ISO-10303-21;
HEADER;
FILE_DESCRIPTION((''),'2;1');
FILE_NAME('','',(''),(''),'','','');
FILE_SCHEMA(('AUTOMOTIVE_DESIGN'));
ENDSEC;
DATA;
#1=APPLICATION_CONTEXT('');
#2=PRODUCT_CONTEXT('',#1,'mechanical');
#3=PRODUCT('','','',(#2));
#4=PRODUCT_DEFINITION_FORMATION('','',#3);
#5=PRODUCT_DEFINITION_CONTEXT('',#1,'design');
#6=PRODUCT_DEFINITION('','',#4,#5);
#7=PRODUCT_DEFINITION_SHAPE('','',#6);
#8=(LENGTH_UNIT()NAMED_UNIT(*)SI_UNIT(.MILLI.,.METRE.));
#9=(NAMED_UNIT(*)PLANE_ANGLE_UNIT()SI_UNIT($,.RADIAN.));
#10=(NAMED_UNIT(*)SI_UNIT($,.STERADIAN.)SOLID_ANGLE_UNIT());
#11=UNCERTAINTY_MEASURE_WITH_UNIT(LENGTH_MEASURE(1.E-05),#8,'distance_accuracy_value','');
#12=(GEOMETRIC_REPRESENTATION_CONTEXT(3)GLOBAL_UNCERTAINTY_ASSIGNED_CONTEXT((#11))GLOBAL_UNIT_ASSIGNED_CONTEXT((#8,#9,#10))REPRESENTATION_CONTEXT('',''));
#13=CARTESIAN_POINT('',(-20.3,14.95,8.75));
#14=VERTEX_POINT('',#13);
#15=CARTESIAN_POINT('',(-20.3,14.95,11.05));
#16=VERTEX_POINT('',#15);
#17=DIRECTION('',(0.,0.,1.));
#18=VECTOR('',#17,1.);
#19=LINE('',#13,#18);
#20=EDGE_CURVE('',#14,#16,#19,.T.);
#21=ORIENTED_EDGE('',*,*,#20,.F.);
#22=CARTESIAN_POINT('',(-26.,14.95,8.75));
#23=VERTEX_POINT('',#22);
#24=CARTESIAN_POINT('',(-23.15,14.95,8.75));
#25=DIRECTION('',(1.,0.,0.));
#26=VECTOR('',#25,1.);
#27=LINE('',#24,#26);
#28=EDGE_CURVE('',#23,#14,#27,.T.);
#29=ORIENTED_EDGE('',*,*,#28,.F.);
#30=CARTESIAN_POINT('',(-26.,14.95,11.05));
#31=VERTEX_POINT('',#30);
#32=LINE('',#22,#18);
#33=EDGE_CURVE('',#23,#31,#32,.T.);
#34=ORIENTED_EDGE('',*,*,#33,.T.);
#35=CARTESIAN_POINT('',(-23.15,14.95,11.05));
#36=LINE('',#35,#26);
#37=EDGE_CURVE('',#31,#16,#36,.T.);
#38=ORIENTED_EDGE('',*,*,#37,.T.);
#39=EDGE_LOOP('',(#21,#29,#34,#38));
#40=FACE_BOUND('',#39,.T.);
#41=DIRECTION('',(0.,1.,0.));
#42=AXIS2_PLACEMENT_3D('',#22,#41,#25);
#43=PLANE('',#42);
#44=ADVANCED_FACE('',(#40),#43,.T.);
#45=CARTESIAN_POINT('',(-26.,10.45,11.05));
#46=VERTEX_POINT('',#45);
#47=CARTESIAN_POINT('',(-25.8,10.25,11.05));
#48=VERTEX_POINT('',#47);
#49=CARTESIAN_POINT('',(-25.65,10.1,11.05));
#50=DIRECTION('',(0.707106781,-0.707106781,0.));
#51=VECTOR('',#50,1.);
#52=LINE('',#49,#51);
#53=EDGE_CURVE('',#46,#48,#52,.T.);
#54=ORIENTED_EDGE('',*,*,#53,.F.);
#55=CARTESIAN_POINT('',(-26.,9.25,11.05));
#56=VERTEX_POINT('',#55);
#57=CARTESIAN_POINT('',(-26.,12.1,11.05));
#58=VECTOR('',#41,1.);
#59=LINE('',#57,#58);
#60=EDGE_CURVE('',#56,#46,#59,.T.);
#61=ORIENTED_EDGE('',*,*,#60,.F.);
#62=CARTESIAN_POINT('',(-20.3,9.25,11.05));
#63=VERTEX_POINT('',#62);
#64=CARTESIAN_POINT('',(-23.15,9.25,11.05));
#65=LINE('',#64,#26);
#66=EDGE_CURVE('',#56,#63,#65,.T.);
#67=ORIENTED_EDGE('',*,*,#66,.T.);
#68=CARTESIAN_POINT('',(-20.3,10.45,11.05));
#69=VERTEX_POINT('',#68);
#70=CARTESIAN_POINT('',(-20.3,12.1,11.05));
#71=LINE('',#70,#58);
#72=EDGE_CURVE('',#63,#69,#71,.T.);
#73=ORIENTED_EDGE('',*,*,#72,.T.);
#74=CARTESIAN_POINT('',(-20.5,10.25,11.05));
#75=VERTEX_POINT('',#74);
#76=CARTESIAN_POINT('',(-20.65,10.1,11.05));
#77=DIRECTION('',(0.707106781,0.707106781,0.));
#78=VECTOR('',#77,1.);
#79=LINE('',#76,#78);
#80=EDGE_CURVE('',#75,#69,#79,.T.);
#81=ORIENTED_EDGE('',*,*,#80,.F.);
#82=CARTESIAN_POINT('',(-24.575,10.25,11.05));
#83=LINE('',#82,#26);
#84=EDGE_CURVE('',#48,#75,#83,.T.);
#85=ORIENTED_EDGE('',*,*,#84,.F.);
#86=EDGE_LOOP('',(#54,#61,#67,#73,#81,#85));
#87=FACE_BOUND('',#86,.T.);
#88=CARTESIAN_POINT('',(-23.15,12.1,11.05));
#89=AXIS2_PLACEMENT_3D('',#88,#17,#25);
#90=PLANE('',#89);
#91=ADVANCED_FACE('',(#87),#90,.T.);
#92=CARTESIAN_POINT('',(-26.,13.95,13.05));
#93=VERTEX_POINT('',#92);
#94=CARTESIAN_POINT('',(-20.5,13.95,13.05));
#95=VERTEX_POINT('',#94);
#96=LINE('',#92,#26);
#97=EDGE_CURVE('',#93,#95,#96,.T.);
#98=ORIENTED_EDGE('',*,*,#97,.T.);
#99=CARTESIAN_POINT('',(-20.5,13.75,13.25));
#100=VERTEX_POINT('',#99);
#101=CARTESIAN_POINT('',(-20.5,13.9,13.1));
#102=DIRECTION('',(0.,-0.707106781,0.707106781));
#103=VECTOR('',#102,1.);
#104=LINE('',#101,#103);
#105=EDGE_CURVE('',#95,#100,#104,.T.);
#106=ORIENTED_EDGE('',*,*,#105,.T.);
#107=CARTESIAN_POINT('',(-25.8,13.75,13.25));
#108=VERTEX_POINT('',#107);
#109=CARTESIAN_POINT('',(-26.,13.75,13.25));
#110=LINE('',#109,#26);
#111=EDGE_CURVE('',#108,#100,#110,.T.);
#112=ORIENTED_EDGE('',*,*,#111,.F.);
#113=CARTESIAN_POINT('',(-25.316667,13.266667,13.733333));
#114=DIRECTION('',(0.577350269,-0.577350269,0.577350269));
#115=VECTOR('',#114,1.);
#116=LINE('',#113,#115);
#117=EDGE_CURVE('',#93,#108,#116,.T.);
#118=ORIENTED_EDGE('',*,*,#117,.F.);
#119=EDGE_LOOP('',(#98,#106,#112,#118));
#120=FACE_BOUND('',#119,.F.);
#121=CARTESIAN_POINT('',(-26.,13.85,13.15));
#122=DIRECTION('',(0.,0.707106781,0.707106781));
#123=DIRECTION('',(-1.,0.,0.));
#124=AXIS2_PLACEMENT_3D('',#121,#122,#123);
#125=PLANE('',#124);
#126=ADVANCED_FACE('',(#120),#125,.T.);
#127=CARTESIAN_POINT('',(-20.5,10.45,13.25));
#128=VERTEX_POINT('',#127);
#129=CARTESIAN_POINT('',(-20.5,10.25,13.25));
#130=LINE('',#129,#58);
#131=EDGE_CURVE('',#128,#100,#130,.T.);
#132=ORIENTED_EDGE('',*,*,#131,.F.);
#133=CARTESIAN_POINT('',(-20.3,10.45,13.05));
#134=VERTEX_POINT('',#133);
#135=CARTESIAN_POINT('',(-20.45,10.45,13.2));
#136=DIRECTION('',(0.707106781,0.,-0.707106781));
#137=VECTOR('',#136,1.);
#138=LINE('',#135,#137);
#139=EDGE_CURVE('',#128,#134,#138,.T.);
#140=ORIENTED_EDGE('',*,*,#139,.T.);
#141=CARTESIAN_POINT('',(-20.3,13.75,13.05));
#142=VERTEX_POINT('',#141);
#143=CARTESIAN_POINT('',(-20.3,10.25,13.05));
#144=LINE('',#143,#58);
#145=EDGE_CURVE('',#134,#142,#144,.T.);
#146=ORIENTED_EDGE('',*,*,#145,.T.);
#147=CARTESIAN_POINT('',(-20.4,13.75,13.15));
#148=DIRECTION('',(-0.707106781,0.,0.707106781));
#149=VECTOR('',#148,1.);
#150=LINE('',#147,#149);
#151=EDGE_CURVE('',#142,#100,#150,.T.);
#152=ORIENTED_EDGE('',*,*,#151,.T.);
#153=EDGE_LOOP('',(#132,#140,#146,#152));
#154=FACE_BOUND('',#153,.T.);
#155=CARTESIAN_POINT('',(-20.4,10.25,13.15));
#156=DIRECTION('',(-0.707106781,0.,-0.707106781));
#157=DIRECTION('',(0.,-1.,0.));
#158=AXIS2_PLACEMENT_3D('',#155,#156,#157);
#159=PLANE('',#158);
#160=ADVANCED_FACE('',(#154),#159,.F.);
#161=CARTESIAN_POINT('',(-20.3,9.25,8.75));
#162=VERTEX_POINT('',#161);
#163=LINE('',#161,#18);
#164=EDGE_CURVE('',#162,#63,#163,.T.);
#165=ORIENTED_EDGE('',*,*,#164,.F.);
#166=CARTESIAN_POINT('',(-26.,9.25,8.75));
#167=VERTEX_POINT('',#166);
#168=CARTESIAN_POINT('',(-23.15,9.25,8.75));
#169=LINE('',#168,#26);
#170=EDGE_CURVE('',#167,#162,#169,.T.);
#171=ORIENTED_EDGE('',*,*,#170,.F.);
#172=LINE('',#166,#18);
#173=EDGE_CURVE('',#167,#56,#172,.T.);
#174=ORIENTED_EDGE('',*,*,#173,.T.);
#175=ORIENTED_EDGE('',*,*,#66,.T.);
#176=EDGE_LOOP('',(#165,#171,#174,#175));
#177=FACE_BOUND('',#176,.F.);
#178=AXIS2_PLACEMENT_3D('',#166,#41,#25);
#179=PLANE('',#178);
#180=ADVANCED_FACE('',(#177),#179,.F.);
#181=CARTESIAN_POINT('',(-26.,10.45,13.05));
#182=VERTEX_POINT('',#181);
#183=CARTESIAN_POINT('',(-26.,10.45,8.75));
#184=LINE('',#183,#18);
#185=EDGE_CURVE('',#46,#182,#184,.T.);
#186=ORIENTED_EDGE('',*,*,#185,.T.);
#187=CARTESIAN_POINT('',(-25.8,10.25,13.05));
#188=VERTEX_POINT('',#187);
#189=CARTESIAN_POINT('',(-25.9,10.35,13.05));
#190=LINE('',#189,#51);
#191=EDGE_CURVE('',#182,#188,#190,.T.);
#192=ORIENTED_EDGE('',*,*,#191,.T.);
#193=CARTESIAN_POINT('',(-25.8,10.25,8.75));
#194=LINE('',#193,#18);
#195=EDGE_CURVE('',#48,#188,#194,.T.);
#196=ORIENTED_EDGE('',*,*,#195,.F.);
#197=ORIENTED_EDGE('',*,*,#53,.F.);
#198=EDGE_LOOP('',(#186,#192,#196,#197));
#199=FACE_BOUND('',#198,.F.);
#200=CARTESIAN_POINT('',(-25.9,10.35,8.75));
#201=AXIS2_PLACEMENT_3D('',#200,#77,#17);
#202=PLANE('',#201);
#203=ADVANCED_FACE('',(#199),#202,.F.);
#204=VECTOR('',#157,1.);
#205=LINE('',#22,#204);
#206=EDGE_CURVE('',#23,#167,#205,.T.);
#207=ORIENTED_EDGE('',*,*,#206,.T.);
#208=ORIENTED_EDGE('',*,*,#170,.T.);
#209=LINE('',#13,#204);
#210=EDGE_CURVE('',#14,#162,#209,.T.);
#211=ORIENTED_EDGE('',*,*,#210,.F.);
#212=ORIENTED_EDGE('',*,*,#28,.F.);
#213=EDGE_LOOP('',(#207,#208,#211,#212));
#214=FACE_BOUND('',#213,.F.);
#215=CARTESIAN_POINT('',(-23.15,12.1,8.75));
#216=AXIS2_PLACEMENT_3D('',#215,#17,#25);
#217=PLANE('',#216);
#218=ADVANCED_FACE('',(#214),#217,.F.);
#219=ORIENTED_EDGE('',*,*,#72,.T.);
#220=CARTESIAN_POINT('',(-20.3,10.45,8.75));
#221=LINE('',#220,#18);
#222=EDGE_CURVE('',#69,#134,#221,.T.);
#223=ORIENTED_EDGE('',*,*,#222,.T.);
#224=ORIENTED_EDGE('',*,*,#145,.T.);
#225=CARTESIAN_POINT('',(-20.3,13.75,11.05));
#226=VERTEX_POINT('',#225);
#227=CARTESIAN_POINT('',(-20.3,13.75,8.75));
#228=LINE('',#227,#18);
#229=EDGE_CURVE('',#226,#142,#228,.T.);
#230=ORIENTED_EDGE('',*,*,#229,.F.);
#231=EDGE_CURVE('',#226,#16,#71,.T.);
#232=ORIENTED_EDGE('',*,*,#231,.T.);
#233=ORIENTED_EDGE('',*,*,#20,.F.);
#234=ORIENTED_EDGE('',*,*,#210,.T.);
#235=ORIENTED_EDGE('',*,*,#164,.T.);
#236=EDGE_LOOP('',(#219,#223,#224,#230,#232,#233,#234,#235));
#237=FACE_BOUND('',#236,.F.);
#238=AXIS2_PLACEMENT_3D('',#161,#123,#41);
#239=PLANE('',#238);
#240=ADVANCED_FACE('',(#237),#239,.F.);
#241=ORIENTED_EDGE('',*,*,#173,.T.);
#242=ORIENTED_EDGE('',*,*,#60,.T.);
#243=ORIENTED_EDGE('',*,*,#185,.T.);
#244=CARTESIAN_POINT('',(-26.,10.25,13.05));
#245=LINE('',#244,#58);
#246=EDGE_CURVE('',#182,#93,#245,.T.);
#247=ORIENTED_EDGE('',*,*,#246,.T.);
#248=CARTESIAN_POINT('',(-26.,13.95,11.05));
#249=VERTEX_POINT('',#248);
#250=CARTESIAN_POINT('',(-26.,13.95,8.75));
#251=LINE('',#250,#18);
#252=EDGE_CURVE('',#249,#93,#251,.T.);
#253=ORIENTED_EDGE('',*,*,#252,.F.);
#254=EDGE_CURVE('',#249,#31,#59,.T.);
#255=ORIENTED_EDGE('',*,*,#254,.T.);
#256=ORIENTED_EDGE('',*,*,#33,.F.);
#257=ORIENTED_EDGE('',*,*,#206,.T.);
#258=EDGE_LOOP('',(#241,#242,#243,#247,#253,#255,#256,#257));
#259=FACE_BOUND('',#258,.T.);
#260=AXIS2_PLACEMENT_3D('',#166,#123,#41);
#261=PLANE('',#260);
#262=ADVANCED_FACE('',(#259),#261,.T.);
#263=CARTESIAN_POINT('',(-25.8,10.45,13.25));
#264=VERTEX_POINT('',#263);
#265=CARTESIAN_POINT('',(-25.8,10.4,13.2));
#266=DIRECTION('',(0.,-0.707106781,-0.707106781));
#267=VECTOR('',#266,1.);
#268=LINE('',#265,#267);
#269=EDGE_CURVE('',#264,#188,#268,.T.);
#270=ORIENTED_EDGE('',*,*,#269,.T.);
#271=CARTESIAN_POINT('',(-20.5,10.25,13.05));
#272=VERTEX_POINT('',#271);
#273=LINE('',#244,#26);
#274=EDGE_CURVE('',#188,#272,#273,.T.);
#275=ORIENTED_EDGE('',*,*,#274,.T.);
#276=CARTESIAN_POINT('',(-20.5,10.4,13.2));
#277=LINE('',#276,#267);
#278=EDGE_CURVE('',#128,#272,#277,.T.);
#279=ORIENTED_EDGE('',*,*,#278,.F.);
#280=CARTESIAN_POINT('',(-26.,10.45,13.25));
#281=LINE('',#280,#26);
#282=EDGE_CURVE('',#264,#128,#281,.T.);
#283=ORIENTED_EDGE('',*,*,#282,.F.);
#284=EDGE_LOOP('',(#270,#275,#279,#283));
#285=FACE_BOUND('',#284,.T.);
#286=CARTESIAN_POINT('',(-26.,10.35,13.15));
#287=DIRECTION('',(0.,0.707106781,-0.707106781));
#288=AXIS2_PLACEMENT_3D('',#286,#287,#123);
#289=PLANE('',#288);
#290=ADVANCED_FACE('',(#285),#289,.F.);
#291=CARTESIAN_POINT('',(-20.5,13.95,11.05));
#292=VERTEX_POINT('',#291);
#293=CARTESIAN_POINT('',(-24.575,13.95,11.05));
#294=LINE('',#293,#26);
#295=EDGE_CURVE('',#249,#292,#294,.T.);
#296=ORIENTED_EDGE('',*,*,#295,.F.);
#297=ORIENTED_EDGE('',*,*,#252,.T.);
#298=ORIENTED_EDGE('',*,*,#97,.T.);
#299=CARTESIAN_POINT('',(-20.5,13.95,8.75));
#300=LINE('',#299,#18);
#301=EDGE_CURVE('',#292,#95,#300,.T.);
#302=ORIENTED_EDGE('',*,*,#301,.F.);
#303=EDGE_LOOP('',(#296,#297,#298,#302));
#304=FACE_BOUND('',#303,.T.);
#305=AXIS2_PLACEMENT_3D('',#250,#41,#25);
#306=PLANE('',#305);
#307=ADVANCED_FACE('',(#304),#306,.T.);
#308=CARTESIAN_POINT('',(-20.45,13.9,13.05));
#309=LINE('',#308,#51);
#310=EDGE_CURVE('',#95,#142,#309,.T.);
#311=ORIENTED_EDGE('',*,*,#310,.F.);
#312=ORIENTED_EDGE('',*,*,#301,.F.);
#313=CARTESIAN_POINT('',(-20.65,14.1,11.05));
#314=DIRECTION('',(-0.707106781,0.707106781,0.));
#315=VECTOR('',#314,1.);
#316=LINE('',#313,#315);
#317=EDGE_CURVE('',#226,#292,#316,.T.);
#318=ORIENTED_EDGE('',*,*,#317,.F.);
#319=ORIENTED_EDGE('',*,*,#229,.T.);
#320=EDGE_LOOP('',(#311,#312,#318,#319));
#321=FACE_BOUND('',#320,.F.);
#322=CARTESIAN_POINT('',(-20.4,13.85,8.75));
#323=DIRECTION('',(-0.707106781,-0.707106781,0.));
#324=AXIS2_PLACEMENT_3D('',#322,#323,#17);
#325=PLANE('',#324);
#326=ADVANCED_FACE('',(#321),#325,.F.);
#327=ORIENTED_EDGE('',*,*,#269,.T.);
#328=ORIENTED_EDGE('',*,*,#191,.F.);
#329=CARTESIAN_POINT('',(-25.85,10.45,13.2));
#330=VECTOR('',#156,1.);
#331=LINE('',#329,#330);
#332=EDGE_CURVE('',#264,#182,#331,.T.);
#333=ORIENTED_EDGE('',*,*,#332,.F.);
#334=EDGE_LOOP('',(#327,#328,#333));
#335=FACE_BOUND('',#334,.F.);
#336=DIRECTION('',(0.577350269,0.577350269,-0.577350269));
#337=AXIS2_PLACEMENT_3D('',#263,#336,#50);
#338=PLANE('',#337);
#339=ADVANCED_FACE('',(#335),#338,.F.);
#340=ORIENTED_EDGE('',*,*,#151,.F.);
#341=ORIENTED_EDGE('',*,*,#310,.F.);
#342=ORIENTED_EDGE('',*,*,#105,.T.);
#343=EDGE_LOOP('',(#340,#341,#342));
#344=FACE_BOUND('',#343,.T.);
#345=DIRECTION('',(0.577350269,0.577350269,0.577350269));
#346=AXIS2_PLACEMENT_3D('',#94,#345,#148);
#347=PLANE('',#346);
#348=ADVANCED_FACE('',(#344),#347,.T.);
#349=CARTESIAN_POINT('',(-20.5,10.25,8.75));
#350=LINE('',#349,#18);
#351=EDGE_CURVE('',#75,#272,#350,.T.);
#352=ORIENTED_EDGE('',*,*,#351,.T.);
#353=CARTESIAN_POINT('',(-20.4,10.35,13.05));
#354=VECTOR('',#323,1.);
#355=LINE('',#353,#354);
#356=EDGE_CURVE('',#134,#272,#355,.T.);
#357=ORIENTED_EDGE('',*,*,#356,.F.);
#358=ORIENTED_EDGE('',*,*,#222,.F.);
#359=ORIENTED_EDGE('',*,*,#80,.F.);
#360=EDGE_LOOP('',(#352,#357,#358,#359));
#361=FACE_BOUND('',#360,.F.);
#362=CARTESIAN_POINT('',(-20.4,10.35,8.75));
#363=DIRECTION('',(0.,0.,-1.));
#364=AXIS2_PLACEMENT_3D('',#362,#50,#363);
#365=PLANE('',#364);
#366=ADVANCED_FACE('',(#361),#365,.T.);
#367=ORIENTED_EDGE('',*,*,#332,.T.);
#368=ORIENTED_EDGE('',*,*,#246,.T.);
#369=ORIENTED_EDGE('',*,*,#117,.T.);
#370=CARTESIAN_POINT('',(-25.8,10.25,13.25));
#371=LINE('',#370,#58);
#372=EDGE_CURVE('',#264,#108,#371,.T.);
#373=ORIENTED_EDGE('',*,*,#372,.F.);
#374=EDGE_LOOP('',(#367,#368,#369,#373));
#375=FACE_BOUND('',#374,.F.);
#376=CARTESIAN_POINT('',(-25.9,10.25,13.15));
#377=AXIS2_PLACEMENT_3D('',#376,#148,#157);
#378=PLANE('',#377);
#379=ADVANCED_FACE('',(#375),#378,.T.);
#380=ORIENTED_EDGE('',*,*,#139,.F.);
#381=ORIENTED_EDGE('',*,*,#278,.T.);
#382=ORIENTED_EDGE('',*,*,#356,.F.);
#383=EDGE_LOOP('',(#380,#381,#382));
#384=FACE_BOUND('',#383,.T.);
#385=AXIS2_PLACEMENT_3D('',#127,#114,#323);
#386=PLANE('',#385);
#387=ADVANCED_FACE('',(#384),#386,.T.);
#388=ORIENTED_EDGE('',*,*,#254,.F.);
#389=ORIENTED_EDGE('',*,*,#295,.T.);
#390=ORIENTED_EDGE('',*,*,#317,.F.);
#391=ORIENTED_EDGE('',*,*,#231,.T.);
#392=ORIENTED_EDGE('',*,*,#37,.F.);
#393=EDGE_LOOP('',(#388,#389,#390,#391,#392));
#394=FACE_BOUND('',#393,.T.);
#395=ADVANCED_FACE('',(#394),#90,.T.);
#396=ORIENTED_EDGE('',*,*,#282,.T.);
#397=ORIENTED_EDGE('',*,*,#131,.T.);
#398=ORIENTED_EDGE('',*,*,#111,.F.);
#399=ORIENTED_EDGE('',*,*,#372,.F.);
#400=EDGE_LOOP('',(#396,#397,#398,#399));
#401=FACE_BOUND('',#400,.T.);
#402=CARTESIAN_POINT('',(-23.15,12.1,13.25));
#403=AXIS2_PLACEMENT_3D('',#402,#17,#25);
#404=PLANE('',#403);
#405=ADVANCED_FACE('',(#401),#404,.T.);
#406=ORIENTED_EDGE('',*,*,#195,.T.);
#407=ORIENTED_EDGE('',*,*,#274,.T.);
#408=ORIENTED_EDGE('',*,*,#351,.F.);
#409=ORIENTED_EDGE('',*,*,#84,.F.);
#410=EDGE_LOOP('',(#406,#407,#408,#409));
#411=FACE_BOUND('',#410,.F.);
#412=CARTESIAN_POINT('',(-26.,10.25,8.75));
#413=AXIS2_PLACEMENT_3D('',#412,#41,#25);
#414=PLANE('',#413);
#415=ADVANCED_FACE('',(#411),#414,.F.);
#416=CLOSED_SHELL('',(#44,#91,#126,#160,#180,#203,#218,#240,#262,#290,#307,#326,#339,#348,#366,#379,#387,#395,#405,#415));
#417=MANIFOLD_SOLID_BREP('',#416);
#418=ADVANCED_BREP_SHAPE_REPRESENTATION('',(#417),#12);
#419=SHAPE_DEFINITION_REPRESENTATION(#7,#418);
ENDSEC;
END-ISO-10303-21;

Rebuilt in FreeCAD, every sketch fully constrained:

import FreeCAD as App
import Part
import Sketcher
from FreeCAD import Vector


def edges_at(feature, points):
    """Names of the edges that pass closest to the given points."""
    edges = feature.Shape.Edges
    near = lambda p: min(range(len(edges)), key=lambda i: edges[i].distToShape(Part.Vertex(*p))[0])
    return sorted({f"Edge{near(p) + 1}" for p in points})

doc = App.newDocument("Part")
body = doc.addObject("PartDesign::Body", "Body")

sketch1 = doc.addObject("Sketcher::SketchObject", "Sketch")
body.addObject(sketch1)
sketch1.AttachmentSupport = (doc.XY_Plane, [""])
sketch1.MapMode = "FlatFace"
sketch1.addGeometry([
    Part.LineSegment(Vector(0, 5, 0), Vector(0, -1, 0)),
    Part.LineSegment(Vector(0, -1, 0), Vector(6, -1, 0)),
    Part.LineSegment(Vector(6, -1, 0), Vector(6, 5, 0)),
    Part.LineSegment(Vector(6, 5, 0), Vector(0, 5, 0)),
], False)
sketch1.addConstraint([
    Sketcher.Constraint("Coincident", 0, 2, 1, 1),
    Sketcher.Constraint("Coincident", 1, 2, 2, 1),
    Sketcher.Constraint("Coincident", 2, 2, 3, 1),
    Sketcher.Constraint("Coincident", 3, 2, 0, 1),
    Sketcher.Constraint("Vertical", 0),
    Sketcher.Constraint("Horizontal", 1),
    Sketcher.Constraint("Vertical", 2),
    Sketcher.Constraint("Horizontal", 3),
    Sketcher.Constraint("PointOnObject", 0, 2, -2),
    Sketcher.Constraint("Equal", 3, 0),
    Sketcher.Constraint("DistanceX", 1, 1, 1, 2, 5.7),
    Sketcher.Constraint("DistanceY", 0, 2, -1, 1, 1.0),
])
pad1 = doc.addObject("PartDesign::Pad", "Pad")
body.addObject(pad1)
pad1.Profile = sketch1
pad1.Length = 2.3
body2 = doc.addObject("PartDesign::Body", "Body001")

sketch2 = doc.addObject("Sketcher::SketchObject", "Sketch001")
body2.addObject(sketch2)
sketch2.AttachmentSupport = (doc.getObject("XY_Plane001"), [""])
sketch2.MapMode = "FlatFace"
sketch2.addGeometry([
    Part.LineSegment(Vector(0, 3.7, 0), Vector(0, 0, 0)),
    Part.LineSegment(Vector(0, 0, 0), Vector(5.7, 0, 0)),
    Part.LineSegment(Vector(5.7, 0, 0), Vector(5.7, 3.7, 0)),
    Part.LineSegment(Vector(5.7, 3.7, 0), Vector(0, 3.7, 0)),
], False)
sketch2.addConstraint([
    Sketcher.Constraint("Coincident", 0, 2, 1, 1),
    Sketcher.Constraint("Coincident", 1, 2, 2, 1),
    Sketcher.Constraint("Coincident", 2, 2, 3, 1),
    Sketcher.Constraint("Coincident", 3, 2, 0, 1),
    Sketcher.Constraint("Vertical", 0),
    Sketcher.Constraint("Horizontal", 1),
    Sketcher.Constraint("Vertical", 2),
    Sketcher.Constraint("Horizontal", 3),
    Sketcher.Constraint("Coincident", 0, 2, -1, 1),
    Sketcher.Constraint("DistanceX", 1, 1, 1, 2, 5.7),
    Sketcher.Constraint("DistanceY", 0, 2, 0, 1, 3.7),
])
pad2 = doc.addObject("PartDesign::Pad", "Pad001")
body2.addObject(pad2)
pad2.Profile = sketch2
pad2.Length = 4.5
doc.recompute()

chamfer = doc.addObject("PartDesign::Chamfer", "Chamfer")
body2.addObject(chamfer)
chamfer.Base = (pad2, edges_at(pad2, [
    (0, 0, 2.25),
    (0, 1.85, 4.5),
    (5.7, 0, 2.25),
    (5.7, 1.85, 4.5),
    (5.7, 3.7, 2.25),
    (2.85, 0, 4.5),
    (2.85, 3.7, 4.5),
]))
chamfer.Size = 0.2
doc.recompute()

boolean = doc.addObject("PartDesign::Boolean", "Boolean")
body2.addObject(boolean)
boolean.Type = "Fuse"
boolean.addObjects([body])
body3 = doc.addObject("PartDesign::Body", "Body002")
doc.recompute()

body2.Placement = App.Placement(Vector(-26, 10.25, 8.75), App.Rotation(Vector(0, 0, 1), 0))
boolean2 = doc.addObject("PartDesign::Boolean", "Boolean001")
body3.addObject(boolean2)
boolean2.Type = "Fuse"
boolean2.addObjects([body2])

doc.recompute()
